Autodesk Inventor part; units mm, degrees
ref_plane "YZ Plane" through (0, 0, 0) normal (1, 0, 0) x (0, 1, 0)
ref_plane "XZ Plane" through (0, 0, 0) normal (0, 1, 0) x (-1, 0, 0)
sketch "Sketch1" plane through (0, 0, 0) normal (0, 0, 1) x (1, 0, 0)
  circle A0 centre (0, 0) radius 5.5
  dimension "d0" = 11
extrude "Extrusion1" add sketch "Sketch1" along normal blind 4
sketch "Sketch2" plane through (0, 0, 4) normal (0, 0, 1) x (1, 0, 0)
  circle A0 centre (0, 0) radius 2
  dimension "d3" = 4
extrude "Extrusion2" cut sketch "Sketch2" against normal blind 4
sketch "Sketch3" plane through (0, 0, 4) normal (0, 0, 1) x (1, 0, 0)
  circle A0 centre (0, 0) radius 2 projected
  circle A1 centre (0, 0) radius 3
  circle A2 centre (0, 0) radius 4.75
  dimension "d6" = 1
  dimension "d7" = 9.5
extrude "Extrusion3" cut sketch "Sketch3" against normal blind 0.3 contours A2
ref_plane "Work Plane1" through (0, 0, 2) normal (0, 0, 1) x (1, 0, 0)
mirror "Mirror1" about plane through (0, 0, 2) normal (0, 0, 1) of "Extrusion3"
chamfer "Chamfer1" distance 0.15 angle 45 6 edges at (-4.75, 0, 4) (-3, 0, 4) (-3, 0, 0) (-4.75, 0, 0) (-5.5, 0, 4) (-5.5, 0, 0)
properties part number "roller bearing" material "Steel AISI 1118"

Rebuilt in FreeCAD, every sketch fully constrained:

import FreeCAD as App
import Part
import Sketcher
Q = App.Units.Quantity


def edges_at(feature, points):
    """Names of the edges that pass closest to the given points."""
    edges = feature.Shape.Edges
    near = lambda p: min(range(len(edges)), key=lambda i: edges[i].distToShape(Part.Vertex(*p))[0])
    return sorted({f"Edge{near(p) + 1}" for p in points})

doc = App.newDocument("Part")
params = doc.addObject("Spreadsheet::Sheet", "Params")
for row, (alias, value) in enumerate([
    ("sketch1_diameter", "11 mm"),
    ("pad1_length", "4 mm"),
    ("sketch2_diameter", "4 mm"),
    ("pocket1_length", "4 mm"),
    ("sketch3_diameter", "9.5 mm"),
    ("sketch3_diameter2", "6 mm"),
    ("pocket2_length", "0.3 mm"),
    ("chamfer_size", "0.15 mm"),
], start=1):
    params.set(f"A{row}", alias)
    params.set(f"B{row}", "=" + value)
    params.setAlias(f"B{row}", alias)

body = doc.addObject("PartDesign::Body", "Body")

# Sketch on XY plane
sketch1 = body.newObject("Sketcher::SketchObject", "Sketch")
sketch1.AttachmentSupport = (doc.getObject("XY_Plane"), [""])
sketch1.MapMode = "FlatFace"
sketch1.addGeometry(Part.Circle(App.Vector(0, 0, 0), App.Vector(0, 0, 1), 6), False)
sketch1.addConstraint([
    Sketcher.Constraint("Coincident", 0, 3, -1, 1),
    Sketcher.Constraint("Diameter", 0, Q("11 mm")),
])
sketch1.setExpression("Constraints[1]", "Params.sketch1_diameter")
pad1 = body.newObject("PartDesign::Pad", "Pad")
pad1.Profile = sketch1
pad1.setExpression("Length", "Params.pad1_length")

# Sketch on XY plane
sketch2 = body.newObject("Sketcher::SketchObject", "Sketch001")
sketch2.AttachmentSupport = (doc.getObject("XY_Plane"), [""])
sketch2.MapMode = "FlatFace"
sketch2.AttachmentOffset = App.Placement(App.Vector(0, 0, 4), App.Rotation())
sketch2.addGeometry(Part.Circle(App.Vector(0, 0, 0), App.Vector(0, 0, 1), 2), False)
sketch2.addConstraint([
    Sketcher.Constraint("Coincident", 0, 3, -1, 1),
    Sketcher.Constraint("Diameter", 0, Q("4 mm")),
])
sketch2.setExpression("Constraints[1]", "Params.sketch2_diameter")
pocket1 = body.newObject("PartDesign::Pocket", "Pocket")
pocket1.Profile = sketch2
pocket1.setExpression("Length", "Params.pocket1_length")

# Sketch on XY plane
sketch3 = body.newObject("Sketcher::SketchObject", "Sketch002")
sketch3.AttachmentSupport = (doc.getObject("XY_Plane"), [""])
sketch3.MapMode = "FlatFace"
sketch3.AttachmentOffset = App.Placement(App.Vector(0, 0, 4), App.Rotation())
sketch3.addGeometry([
    Part.Circle(App.Vector(0, 0, 0), App.Vector(0, 0, 1), 4.8),
    Part.Circle(App.Vector(0, 0, 0), App.Vector(0, 0, 1), 3),
], False)
sketch3.addConstraint([
    Sketcher.Constraint("Coincident", 0, 3, -1, 1),
    Sketcher.Constraint("Coincident", 1, 3, -1, 1),
    Sketcher.Constraint("Diameter", 0, Q("9.5 mm")),
    Sketcher.Constraint("Diameter", 1, Q("6 mm")),
])
sketch3.setExpression("Constraints[2]", "Params.sketch3_diameter")
sketch3.setExpression("Constraints[3]", "Params.sketch3_diameter2")
pocket2 = body.newObject("PartDesign::Pocket", "Pocket001")
pocket2.Profile = sketch3
pocket2.setExpression("Length", "Params.pocket2_length")
doc.recompute()

datumplane = body.newObject("PartDesign::Plane", "DatumPlane")
datumplane.AttachmentSupport = (doc.getObject("XY_Plane"), [""])
datumplane.MapMode = "FlatFace"
datumplane.AttachmentOffset = App.Placement(App.Vector(0, 0, 2), App.Rotation())
mirrored = body.newObject("PartDesign::Mirrored", "Mirrored")
mirrored.Originals = [pocket2]
mirrored.MirrorPlane = (datumplane, [""])
body.Tip = mirrored
doc.recompute()

chamfer = body.newObject("PartDesign::Chamfer", "Chamfer")
chamfer.Base = (mirrored, edges_at(mirrored, [
    (-4.75, 0, 4),
    (-3, 0, 4),
    (-3, 0, 0),
    (-4.75, 0, 0),
    (-5.5, 0, 4),
    (-5.5, 0, 0),
]))
chamfer.setExpression("Size", "Params.chamfer_size")

doc.recompute()
